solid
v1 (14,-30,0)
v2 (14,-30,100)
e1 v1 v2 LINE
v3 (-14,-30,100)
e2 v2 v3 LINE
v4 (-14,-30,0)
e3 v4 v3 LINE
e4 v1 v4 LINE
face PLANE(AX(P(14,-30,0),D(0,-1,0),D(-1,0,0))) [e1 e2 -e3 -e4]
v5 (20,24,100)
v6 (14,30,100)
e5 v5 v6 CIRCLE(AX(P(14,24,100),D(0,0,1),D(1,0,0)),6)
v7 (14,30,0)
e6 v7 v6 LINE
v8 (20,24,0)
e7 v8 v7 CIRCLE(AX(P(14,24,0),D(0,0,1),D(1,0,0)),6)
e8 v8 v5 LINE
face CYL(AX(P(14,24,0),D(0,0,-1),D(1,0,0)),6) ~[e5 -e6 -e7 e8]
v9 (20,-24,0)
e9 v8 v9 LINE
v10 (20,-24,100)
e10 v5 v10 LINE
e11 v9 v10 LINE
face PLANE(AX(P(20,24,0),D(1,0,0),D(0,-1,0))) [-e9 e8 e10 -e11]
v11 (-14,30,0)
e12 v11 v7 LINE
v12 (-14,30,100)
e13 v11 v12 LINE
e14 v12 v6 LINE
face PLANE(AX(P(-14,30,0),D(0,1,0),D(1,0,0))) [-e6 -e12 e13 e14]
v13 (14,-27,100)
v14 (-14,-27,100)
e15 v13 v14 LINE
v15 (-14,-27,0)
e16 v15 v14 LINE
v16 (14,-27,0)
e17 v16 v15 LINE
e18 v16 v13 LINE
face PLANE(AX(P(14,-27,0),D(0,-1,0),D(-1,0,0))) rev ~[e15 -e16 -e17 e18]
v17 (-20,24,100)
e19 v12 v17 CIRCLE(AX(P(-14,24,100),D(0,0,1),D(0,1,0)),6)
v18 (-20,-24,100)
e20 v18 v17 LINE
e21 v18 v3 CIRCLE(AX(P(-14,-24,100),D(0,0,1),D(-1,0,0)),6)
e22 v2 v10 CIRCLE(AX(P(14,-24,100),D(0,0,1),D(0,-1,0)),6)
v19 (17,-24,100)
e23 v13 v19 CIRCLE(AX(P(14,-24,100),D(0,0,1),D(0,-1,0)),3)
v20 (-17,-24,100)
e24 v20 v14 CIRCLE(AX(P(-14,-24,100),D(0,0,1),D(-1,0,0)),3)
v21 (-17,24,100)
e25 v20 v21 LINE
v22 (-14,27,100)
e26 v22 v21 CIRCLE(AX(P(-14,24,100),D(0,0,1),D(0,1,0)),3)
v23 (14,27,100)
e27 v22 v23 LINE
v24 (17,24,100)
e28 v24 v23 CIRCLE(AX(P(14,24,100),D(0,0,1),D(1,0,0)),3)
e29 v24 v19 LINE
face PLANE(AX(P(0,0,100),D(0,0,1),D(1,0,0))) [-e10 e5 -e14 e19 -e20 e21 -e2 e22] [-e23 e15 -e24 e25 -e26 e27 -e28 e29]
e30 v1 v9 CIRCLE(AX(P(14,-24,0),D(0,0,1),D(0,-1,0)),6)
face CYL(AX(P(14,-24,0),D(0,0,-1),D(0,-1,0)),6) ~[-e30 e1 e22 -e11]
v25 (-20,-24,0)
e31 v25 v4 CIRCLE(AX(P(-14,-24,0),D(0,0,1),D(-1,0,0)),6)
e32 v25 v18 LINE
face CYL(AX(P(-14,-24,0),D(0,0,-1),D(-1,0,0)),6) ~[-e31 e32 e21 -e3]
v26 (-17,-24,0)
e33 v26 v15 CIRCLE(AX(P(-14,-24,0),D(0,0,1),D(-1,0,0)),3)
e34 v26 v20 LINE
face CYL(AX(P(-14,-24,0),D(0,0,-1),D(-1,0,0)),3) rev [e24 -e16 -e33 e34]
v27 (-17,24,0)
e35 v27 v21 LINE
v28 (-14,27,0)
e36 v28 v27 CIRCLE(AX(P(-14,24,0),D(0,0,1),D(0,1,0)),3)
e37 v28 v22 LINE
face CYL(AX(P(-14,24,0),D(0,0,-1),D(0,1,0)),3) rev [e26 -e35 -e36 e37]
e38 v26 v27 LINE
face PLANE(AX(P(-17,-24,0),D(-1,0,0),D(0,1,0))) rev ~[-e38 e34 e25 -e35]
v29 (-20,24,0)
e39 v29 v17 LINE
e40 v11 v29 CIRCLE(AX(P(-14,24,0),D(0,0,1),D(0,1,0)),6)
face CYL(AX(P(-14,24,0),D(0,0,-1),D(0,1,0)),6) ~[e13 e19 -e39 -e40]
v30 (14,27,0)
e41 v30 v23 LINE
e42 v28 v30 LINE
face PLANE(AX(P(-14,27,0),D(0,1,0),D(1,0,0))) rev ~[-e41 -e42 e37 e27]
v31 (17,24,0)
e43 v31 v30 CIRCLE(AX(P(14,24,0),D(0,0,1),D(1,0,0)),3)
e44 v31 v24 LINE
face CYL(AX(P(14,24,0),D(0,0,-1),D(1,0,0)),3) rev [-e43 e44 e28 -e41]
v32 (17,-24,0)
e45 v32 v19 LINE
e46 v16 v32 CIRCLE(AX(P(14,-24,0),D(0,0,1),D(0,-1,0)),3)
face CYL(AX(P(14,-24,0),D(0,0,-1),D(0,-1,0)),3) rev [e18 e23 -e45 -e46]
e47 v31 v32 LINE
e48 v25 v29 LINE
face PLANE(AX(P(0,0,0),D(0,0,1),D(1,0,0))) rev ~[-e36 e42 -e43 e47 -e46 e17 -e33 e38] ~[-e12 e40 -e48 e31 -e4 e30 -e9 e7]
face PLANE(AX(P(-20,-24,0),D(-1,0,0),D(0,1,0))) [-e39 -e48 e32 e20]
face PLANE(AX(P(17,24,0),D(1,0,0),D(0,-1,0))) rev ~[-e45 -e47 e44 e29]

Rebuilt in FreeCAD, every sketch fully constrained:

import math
import FreeCAD as App
import Part
import Sketcher

doc = App.newDocument("Part")
params = doc.addObject("Spreadsheet::Sheet", "Params")
for row, (alias, value) in enumerate([
    ("sketch1_radius", "6 mm"),
    ("sketch1_radius2", "3 mm"),
    ("pad1_length", "100 mm"),
], start=1):
    params.set(f"A{row}", alias)
    params.set(f"B{row}", "=" + value)
    params.setAlias(f"B{row}", alias)

body = doc.addObject("PartDesign::Body", "Body")

# Sketch on XY plane
sketch1 = body.newObject("Sketcher::SketchObject", "Sketch")
sketch1.AttachmentSupport = (doc.getObject("XY_Plane"), [""])
sketch1.MapMode = "FlatFace"
sketch1.addGeometry([
    Part.LineSegment(App.Vector(-20, 24, 0), App.Vector(-20, -24, 0)),  # 0
    Part.ArcOfCircle(Part.Circle(App.Vector(-14, -24, 0), App.Vector(0, 0, 1), 6), math.radians(180), math.radians(270)),  # 1
    Part.LineSegment(App.Vector(-14, -30, 0), App.Vector(14, -30, 0)),  # 2
    Part.ArcOfCircle(Part.Circle(App.Vector(14, -24, 0), App.Vector(0, 0, 1), 6), math.radians(-90), math.radians(0)),  # 3
    Part.LineSegment(App.Vector(20, -24, 0), App.Vector(20, 24, 0)),  # 4
    Part.ArcOfCircle(Part.Circle(App.Vector(14, 24, 0), App.Vector(0, 0, 1), 6), math.radians(0), math.radians(90)),  # 5
    Part.LineSegment(App.Vector(14, 30, 0), App.Vector(-14, 30, 0)),  # 6
    Part.ArcOfCircle(Part.Circle(App.Vector(-14, 24, 0), App.Vector(0, 0, 1), 6), math.radians(90), math.radians(180)),  # 7
    Part.ArcOfCircle(Part.Circle(App.Vector(-14, 24, 0), App.Vector(0, 0, 1), 3), math.radians(90), math.radians(180)),  # 8
    Part.LineSegment(App.Vector(-14, 27, 0), App.Vector(14, 27, 0)),  # 9
    Part.ArcOfCircle(Part.Circle(App.Vector(14, 24, 0), App.Vector(0, 0, 1), 3), math.radians(0), math.radians(90)),  # 10
    Part.LineSegment(App.Vector(17, 24, 0), App.Vector(17, -24, 0)),  # 11
    Part.ArcOfCircle(Part.Circle(App.Vector(14, -24, 0), App.Vector(0, 0, 1), 3), math.radians(-90), math.radians(0)),  # 12
    Part.LineSegment(App.Vector(14, -27, 0), App.Vector(-14, -27, 0)),  # 13
    Part.ArcOfCircle(Part.Circle(App.Vector(-14, -24, 0), App.Vector(0, 0, 1), 3), math.radians(180), math.radians(270)),  # 14
    Part.LineSegment(App.Vector(-17, -24, 0), App.Vector(-17, 24, 0)),  # 15
], False)
sketch1.addConstraint([
    Sketcher.Constraint("Tangent", 0, 2, 1, 1),
    Sketcher.Constraint("Tangent", 1, 2, 2, 1),
    Sketcher.Constraint("Tangent", 2, 2, 3, 1),
    Sketcher.Constraint("Tangent", 3, 2, 4, 1),
    Sketcher.Constraint("Tangent", 4, 2, 5, 1),
    Sketcher.Constraint("Tangent", 5, 2, 6, 1),
    Sketcher.Constraint("Tangent", 6, 2, 7, 1),
    Sketcher.Constraint("Tangent", 7, 2, 0, 1),
    Sketcher.Constraint("Tangent", 8, 1, 9, 1),
    Sketcher.Constraint("Tangent", 9, 2, 10, 2),
    Sketcher.Constraint("Tangent", 10, 1, 11, 1),
    Sketcher.Constraint("Tangent", 11, 2, 12, 2),
    Sketcher.Constraint("Tangent", 12, 1, 13, 1),
    Sketcher.Constraint("Tangent", 13, 2, 14, 2),
    Sketcher.Constraint("Tangent", 14, 1, 15, 1),
    Sketcher.Constraint("Tangent", 15, 2, 8, 2),
    Sketcher.Constraint("Vertical", 0),
    Sketcher.Constraint("Horizontal", 2),
    Sketcher.Constraint("Vertical", 4),
    Sketcher.Constraint("Horizontal", 6),
    Sketcher.Constraint("Horizontal", 9),
    Sketcher.Constraint("Vertical", 11),
    Sketcher.Constraint("Horizontal", 13),
    Sketcher.Constraint("Vertical", 15),
    Sketcher.Constraint("Coincident", 8, 3, 7, 3),
    Sketcher.Constraint("Coincident", 10, 3, 5, 3),
    Sketcher.Constraint("Coincident", 12, 3, 3, 3),
    Sketcher.Constraint("Equal", 1, 3),
    Sketcher.Constraint("Equal", 3, 5),
    Sketcher.Constraint("Equal", 5, 7),
    Sketcher.Constraint("Equal", 12, 14),
    Sketcher.Constraint("Symmetric", 1, 3, 5, 3, -1, 1),
    Sketcher.Constraint("Radius", 1, 6.0),
    Sketcher.Constraint("Radius", 8, 3.0),
    Sketcher.Constraint("DistanceX", 0, 2, -1, 1, 20.0),
    Sketcher.Constraint("DistanceY", 1, 2, -1, 1, 30.0),
])
sketch1.setExpression("Constraints[32]", "Params.sketch1_radius")
sketch1.setExpression("Constraints[33]", "Params.sketch1_radius2")
pad1 = body.newObject("PartDesign::Pad", "Pad")
pad1.Profile = sketch1
pad1.setExpression("Length", "Params.pad1_length")

doc.recompute()
